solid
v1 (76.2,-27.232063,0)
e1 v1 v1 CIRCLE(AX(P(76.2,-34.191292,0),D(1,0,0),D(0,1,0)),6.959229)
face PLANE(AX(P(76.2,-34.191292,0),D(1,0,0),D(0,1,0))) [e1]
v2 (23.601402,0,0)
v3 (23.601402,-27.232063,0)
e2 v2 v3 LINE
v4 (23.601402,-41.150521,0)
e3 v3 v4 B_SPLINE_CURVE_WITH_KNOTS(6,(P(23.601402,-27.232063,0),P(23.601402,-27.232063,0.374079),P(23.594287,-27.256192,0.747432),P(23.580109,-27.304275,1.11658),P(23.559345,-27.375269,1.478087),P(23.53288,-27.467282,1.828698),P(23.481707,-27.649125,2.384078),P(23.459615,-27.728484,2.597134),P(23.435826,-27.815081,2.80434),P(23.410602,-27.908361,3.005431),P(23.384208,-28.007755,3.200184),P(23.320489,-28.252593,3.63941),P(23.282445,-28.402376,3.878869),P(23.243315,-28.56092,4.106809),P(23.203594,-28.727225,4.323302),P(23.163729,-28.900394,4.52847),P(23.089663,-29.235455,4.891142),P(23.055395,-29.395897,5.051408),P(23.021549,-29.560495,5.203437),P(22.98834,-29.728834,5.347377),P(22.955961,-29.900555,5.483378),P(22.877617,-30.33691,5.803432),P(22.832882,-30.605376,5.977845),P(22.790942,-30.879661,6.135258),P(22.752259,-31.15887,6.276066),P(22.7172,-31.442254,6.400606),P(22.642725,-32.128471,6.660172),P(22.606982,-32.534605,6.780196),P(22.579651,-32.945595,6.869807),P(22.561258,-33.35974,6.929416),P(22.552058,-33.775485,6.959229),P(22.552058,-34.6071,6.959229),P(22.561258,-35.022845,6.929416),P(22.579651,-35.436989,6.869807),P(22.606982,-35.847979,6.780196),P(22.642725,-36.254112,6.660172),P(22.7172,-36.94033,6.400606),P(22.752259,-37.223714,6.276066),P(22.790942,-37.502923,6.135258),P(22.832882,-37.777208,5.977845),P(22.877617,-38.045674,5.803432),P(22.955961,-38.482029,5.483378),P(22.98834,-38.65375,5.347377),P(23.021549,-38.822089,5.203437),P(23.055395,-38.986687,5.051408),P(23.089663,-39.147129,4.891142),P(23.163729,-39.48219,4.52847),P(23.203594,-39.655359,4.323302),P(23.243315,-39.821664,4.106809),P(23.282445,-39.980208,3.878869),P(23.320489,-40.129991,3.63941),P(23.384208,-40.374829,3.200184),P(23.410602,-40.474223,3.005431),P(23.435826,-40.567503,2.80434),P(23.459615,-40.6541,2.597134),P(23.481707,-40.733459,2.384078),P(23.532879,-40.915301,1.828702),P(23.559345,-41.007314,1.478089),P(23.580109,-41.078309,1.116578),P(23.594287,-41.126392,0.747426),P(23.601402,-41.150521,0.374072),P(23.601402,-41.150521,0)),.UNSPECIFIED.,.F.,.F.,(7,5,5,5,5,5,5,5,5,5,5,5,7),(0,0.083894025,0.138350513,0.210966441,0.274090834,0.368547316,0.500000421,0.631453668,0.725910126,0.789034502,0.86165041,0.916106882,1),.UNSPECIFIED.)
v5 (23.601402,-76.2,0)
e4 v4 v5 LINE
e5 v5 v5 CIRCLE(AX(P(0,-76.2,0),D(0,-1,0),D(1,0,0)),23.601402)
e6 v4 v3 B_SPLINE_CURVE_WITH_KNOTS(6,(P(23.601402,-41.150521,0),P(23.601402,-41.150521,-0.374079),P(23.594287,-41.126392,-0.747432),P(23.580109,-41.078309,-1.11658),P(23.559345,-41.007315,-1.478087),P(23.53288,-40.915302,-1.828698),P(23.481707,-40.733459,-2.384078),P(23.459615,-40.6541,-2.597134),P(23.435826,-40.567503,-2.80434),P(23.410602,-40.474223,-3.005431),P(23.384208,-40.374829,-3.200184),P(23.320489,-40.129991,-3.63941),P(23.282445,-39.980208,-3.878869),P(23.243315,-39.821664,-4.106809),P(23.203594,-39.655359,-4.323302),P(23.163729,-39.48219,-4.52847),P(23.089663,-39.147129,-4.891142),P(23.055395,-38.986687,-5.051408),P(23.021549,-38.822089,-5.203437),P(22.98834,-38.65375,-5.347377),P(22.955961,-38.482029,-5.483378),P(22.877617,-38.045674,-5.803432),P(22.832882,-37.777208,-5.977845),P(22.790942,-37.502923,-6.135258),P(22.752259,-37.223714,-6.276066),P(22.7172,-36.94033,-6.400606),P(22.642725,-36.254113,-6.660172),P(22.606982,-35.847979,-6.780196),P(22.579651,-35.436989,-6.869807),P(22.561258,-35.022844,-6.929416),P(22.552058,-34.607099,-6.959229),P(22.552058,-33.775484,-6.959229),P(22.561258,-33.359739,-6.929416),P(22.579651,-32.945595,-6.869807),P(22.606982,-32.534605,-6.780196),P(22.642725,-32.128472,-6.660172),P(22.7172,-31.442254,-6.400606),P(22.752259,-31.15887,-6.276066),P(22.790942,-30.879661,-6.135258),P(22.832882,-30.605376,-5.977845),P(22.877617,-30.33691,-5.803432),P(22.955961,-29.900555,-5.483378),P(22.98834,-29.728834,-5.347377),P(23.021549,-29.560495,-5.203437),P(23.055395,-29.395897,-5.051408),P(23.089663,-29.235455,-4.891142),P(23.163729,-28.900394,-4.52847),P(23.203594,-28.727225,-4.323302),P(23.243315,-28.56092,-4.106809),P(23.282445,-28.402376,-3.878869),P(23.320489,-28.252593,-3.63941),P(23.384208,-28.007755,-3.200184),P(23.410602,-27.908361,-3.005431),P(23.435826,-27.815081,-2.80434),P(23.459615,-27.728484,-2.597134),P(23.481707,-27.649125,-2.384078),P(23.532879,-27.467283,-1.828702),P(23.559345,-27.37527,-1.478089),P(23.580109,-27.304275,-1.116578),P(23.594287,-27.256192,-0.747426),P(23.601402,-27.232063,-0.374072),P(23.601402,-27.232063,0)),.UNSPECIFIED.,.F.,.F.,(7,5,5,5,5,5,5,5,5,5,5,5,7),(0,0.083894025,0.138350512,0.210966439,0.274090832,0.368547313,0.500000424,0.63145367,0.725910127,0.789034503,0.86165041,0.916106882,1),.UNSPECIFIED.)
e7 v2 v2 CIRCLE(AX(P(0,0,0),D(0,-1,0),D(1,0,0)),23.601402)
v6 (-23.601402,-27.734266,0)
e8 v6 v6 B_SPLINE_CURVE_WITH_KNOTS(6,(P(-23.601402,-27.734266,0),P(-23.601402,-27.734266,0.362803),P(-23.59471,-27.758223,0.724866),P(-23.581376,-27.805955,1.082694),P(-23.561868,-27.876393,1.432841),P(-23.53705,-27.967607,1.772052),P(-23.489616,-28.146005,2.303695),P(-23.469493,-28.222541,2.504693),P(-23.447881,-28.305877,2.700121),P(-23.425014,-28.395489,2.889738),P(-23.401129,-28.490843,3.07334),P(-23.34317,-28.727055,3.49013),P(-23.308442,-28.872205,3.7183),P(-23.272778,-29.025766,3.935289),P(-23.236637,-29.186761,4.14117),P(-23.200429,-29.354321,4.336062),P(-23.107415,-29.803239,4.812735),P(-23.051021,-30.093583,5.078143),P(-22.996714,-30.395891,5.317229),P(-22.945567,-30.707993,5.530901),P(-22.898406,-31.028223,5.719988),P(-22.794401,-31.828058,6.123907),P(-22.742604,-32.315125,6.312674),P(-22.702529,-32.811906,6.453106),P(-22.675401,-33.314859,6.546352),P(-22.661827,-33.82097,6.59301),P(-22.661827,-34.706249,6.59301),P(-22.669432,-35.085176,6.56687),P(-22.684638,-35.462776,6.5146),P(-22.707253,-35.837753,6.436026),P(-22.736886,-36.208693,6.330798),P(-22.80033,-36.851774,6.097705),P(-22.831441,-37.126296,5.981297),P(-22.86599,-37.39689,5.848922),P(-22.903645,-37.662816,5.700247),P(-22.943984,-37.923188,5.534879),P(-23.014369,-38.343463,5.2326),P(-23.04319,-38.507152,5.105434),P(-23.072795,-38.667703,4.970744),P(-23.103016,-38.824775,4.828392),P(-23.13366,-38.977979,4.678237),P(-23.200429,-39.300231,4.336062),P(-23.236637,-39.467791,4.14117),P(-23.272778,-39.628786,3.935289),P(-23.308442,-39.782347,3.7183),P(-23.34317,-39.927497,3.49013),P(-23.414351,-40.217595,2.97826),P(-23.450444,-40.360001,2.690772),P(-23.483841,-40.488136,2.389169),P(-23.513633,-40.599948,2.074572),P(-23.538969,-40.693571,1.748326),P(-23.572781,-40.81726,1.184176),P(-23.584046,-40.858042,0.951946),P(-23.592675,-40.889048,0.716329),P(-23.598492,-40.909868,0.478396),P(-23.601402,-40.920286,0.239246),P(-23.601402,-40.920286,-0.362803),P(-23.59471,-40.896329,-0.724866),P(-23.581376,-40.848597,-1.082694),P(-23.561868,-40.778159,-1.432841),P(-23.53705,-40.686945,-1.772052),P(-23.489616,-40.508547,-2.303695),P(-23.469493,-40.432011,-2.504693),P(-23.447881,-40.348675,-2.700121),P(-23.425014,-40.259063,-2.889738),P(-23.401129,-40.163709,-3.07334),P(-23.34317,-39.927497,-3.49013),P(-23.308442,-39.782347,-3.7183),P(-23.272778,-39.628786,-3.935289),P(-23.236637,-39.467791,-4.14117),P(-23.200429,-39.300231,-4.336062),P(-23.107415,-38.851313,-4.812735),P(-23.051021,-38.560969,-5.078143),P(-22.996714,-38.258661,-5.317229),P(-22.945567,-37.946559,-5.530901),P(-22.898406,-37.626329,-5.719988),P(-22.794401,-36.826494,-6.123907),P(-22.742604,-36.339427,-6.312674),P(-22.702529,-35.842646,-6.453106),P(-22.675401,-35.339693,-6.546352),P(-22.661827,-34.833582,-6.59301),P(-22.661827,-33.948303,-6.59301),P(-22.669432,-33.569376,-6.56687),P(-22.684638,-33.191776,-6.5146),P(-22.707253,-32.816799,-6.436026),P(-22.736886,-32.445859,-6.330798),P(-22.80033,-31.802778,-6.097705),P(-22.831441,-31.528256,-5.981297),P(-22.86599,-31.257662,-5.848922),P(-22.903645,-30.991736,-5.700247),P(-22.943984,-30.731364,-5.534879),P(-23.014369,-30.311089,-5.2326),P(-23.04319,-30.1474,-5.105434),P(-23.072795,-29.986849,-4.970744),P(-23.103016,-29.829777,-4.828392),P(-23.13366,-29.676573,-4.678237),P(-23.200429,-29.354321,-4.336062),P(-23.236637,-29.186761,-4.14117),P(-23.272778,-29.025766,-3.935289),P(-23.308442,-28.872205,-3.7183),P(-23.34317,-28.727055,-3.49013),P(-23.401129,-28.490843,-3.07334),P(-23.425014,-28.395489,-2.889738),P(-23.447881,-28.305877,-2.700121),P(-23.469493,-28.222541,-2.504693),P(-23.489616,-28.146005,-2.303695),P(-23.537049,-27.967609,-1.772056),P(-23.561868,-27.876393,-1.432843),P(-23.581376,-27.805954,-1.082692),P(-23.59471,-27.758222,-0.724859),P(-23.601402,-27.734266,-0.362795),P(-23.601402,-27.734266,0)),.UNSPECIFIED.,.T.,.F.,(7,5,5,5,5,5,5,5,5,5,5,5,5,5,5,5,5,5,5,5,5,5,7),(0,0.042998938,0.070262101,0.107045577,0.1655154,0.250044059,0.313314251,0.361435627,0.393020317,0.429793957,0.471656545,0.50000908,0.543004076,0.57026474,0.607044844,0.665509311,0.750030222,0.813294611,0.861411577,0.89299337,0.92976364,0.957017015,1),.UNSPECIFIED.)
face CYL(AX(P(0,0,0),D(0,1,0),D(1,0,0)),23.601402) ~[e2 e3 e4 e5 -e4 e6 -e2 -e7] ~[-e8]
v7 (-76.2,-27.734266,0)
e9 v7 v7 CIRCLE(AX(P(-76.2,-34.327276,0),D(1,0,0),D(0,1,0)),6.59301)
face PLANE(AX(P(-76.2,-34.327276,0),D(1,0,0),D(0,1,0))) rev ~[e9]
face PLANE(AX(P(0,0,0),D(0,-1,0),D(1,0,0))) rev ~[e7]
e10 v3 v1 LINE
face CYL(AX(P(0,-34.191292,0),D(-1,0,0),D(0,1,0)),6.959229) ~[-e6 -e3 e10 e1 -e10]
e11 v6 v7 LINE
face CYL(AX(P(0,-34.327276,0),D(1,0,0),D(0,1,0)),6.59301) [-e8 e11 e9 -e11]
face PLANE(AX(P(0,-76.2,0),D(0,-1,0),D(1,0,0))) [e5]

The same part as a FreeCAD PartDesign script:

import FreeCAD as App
import Part
import Sketcher
from FreeCAD import Vector
Q = App.Units.Quantity

doc = App.newDocument("Part")
body = doc.addObject("PartDesign::Body", "Body")

# Sketch on XZ plane
sketch1 = doc.addObject("Sketcher::SketchObject", "Sketch")
body.addObject(sketch1)
sketch1.AttachmentSupport = (doc.XZ_Plane, [""])
sketch1.MapMode = "FlatFace"
sketch1.addGeometry(Part.Circle(Vector(0, 0, 0), Vector(0, 0, 1), 24), False)
sketch1.addConstraint(Sketcher.Constraint("Coincident", 0, 3, -1, 1))
sketch1.addConstraint(Sketcher.Constraint("Diameter", 0, Q("47.202804 mm")))
pad1 = doc.addObject("PartDesign::Pad", "Pad")
body.addObject(pad1)
pad1.Profile = sketch1
pad1.Length = Q("3 in")

# Sketch on YZ plane
sketch2 = doc.addObject("Sketcher::SketchObject", "Sketch001")
body.addObject(sketch2)
sketch2.AttachmentSupport = (doc.YZ_Plane, [""])
sketch2.MapMode = "FlatFace"
sketch2.addGeometry(Part.Circle(Vector(-34, 0, 0), Vector(0, 0, 1), 7), False)
sketch2.addConstraint(Sketcher.Constraint("PointOnObject", 0, 3, -1))
sketch2.addConstraint(Sketcher.Constraint("Diameter", 0, Q("13.918458 mm")))
sketch2.addConstraint(Sketcher.Constraint("DistanceX", 0, 3, -1, 1, Q("34.191292 mm")))
pad2 = doc.addObject("PartDesign::Pad", "Pad001")
body.addObject(pad2)
pad2.Profile = sketch2
pad2.Length = Q("3 in")

# Sketch on YZ plane
sketch3 = doc.addObject("Sketcher::SketchObject", "Sketch002")
body.addObject(sketch3)
sketch3.AttachmentSupport = (doc.YZ_Plane, [""])
sketch3.MapMode = "FlatFace"
sketch3.addGeometry(Part.Circle(Vector(-34, 0, 0), Vector(0, 0, 1), 7), False)
sketch3.addConstraint(Sketcher.Constraint("PointOnObject", 0, 3, -1))
sketch3.addConstraint(Sketcher.Constraint("Diameter", 0, Q("13.18602 mm")))
sketch3.addConstraint(Sketcher.Constraint("DistanceX", 0, 3, -1, 1, Q("34.327276 mm")))
pad3 = doc.addObject("PartDesign::Pad", "Pad002")
body.addObject(pad3)
pad3.Profile = sketch3
pad3.Length = Q("3 in")
pad3.Reversed = True

doc.recompute()
